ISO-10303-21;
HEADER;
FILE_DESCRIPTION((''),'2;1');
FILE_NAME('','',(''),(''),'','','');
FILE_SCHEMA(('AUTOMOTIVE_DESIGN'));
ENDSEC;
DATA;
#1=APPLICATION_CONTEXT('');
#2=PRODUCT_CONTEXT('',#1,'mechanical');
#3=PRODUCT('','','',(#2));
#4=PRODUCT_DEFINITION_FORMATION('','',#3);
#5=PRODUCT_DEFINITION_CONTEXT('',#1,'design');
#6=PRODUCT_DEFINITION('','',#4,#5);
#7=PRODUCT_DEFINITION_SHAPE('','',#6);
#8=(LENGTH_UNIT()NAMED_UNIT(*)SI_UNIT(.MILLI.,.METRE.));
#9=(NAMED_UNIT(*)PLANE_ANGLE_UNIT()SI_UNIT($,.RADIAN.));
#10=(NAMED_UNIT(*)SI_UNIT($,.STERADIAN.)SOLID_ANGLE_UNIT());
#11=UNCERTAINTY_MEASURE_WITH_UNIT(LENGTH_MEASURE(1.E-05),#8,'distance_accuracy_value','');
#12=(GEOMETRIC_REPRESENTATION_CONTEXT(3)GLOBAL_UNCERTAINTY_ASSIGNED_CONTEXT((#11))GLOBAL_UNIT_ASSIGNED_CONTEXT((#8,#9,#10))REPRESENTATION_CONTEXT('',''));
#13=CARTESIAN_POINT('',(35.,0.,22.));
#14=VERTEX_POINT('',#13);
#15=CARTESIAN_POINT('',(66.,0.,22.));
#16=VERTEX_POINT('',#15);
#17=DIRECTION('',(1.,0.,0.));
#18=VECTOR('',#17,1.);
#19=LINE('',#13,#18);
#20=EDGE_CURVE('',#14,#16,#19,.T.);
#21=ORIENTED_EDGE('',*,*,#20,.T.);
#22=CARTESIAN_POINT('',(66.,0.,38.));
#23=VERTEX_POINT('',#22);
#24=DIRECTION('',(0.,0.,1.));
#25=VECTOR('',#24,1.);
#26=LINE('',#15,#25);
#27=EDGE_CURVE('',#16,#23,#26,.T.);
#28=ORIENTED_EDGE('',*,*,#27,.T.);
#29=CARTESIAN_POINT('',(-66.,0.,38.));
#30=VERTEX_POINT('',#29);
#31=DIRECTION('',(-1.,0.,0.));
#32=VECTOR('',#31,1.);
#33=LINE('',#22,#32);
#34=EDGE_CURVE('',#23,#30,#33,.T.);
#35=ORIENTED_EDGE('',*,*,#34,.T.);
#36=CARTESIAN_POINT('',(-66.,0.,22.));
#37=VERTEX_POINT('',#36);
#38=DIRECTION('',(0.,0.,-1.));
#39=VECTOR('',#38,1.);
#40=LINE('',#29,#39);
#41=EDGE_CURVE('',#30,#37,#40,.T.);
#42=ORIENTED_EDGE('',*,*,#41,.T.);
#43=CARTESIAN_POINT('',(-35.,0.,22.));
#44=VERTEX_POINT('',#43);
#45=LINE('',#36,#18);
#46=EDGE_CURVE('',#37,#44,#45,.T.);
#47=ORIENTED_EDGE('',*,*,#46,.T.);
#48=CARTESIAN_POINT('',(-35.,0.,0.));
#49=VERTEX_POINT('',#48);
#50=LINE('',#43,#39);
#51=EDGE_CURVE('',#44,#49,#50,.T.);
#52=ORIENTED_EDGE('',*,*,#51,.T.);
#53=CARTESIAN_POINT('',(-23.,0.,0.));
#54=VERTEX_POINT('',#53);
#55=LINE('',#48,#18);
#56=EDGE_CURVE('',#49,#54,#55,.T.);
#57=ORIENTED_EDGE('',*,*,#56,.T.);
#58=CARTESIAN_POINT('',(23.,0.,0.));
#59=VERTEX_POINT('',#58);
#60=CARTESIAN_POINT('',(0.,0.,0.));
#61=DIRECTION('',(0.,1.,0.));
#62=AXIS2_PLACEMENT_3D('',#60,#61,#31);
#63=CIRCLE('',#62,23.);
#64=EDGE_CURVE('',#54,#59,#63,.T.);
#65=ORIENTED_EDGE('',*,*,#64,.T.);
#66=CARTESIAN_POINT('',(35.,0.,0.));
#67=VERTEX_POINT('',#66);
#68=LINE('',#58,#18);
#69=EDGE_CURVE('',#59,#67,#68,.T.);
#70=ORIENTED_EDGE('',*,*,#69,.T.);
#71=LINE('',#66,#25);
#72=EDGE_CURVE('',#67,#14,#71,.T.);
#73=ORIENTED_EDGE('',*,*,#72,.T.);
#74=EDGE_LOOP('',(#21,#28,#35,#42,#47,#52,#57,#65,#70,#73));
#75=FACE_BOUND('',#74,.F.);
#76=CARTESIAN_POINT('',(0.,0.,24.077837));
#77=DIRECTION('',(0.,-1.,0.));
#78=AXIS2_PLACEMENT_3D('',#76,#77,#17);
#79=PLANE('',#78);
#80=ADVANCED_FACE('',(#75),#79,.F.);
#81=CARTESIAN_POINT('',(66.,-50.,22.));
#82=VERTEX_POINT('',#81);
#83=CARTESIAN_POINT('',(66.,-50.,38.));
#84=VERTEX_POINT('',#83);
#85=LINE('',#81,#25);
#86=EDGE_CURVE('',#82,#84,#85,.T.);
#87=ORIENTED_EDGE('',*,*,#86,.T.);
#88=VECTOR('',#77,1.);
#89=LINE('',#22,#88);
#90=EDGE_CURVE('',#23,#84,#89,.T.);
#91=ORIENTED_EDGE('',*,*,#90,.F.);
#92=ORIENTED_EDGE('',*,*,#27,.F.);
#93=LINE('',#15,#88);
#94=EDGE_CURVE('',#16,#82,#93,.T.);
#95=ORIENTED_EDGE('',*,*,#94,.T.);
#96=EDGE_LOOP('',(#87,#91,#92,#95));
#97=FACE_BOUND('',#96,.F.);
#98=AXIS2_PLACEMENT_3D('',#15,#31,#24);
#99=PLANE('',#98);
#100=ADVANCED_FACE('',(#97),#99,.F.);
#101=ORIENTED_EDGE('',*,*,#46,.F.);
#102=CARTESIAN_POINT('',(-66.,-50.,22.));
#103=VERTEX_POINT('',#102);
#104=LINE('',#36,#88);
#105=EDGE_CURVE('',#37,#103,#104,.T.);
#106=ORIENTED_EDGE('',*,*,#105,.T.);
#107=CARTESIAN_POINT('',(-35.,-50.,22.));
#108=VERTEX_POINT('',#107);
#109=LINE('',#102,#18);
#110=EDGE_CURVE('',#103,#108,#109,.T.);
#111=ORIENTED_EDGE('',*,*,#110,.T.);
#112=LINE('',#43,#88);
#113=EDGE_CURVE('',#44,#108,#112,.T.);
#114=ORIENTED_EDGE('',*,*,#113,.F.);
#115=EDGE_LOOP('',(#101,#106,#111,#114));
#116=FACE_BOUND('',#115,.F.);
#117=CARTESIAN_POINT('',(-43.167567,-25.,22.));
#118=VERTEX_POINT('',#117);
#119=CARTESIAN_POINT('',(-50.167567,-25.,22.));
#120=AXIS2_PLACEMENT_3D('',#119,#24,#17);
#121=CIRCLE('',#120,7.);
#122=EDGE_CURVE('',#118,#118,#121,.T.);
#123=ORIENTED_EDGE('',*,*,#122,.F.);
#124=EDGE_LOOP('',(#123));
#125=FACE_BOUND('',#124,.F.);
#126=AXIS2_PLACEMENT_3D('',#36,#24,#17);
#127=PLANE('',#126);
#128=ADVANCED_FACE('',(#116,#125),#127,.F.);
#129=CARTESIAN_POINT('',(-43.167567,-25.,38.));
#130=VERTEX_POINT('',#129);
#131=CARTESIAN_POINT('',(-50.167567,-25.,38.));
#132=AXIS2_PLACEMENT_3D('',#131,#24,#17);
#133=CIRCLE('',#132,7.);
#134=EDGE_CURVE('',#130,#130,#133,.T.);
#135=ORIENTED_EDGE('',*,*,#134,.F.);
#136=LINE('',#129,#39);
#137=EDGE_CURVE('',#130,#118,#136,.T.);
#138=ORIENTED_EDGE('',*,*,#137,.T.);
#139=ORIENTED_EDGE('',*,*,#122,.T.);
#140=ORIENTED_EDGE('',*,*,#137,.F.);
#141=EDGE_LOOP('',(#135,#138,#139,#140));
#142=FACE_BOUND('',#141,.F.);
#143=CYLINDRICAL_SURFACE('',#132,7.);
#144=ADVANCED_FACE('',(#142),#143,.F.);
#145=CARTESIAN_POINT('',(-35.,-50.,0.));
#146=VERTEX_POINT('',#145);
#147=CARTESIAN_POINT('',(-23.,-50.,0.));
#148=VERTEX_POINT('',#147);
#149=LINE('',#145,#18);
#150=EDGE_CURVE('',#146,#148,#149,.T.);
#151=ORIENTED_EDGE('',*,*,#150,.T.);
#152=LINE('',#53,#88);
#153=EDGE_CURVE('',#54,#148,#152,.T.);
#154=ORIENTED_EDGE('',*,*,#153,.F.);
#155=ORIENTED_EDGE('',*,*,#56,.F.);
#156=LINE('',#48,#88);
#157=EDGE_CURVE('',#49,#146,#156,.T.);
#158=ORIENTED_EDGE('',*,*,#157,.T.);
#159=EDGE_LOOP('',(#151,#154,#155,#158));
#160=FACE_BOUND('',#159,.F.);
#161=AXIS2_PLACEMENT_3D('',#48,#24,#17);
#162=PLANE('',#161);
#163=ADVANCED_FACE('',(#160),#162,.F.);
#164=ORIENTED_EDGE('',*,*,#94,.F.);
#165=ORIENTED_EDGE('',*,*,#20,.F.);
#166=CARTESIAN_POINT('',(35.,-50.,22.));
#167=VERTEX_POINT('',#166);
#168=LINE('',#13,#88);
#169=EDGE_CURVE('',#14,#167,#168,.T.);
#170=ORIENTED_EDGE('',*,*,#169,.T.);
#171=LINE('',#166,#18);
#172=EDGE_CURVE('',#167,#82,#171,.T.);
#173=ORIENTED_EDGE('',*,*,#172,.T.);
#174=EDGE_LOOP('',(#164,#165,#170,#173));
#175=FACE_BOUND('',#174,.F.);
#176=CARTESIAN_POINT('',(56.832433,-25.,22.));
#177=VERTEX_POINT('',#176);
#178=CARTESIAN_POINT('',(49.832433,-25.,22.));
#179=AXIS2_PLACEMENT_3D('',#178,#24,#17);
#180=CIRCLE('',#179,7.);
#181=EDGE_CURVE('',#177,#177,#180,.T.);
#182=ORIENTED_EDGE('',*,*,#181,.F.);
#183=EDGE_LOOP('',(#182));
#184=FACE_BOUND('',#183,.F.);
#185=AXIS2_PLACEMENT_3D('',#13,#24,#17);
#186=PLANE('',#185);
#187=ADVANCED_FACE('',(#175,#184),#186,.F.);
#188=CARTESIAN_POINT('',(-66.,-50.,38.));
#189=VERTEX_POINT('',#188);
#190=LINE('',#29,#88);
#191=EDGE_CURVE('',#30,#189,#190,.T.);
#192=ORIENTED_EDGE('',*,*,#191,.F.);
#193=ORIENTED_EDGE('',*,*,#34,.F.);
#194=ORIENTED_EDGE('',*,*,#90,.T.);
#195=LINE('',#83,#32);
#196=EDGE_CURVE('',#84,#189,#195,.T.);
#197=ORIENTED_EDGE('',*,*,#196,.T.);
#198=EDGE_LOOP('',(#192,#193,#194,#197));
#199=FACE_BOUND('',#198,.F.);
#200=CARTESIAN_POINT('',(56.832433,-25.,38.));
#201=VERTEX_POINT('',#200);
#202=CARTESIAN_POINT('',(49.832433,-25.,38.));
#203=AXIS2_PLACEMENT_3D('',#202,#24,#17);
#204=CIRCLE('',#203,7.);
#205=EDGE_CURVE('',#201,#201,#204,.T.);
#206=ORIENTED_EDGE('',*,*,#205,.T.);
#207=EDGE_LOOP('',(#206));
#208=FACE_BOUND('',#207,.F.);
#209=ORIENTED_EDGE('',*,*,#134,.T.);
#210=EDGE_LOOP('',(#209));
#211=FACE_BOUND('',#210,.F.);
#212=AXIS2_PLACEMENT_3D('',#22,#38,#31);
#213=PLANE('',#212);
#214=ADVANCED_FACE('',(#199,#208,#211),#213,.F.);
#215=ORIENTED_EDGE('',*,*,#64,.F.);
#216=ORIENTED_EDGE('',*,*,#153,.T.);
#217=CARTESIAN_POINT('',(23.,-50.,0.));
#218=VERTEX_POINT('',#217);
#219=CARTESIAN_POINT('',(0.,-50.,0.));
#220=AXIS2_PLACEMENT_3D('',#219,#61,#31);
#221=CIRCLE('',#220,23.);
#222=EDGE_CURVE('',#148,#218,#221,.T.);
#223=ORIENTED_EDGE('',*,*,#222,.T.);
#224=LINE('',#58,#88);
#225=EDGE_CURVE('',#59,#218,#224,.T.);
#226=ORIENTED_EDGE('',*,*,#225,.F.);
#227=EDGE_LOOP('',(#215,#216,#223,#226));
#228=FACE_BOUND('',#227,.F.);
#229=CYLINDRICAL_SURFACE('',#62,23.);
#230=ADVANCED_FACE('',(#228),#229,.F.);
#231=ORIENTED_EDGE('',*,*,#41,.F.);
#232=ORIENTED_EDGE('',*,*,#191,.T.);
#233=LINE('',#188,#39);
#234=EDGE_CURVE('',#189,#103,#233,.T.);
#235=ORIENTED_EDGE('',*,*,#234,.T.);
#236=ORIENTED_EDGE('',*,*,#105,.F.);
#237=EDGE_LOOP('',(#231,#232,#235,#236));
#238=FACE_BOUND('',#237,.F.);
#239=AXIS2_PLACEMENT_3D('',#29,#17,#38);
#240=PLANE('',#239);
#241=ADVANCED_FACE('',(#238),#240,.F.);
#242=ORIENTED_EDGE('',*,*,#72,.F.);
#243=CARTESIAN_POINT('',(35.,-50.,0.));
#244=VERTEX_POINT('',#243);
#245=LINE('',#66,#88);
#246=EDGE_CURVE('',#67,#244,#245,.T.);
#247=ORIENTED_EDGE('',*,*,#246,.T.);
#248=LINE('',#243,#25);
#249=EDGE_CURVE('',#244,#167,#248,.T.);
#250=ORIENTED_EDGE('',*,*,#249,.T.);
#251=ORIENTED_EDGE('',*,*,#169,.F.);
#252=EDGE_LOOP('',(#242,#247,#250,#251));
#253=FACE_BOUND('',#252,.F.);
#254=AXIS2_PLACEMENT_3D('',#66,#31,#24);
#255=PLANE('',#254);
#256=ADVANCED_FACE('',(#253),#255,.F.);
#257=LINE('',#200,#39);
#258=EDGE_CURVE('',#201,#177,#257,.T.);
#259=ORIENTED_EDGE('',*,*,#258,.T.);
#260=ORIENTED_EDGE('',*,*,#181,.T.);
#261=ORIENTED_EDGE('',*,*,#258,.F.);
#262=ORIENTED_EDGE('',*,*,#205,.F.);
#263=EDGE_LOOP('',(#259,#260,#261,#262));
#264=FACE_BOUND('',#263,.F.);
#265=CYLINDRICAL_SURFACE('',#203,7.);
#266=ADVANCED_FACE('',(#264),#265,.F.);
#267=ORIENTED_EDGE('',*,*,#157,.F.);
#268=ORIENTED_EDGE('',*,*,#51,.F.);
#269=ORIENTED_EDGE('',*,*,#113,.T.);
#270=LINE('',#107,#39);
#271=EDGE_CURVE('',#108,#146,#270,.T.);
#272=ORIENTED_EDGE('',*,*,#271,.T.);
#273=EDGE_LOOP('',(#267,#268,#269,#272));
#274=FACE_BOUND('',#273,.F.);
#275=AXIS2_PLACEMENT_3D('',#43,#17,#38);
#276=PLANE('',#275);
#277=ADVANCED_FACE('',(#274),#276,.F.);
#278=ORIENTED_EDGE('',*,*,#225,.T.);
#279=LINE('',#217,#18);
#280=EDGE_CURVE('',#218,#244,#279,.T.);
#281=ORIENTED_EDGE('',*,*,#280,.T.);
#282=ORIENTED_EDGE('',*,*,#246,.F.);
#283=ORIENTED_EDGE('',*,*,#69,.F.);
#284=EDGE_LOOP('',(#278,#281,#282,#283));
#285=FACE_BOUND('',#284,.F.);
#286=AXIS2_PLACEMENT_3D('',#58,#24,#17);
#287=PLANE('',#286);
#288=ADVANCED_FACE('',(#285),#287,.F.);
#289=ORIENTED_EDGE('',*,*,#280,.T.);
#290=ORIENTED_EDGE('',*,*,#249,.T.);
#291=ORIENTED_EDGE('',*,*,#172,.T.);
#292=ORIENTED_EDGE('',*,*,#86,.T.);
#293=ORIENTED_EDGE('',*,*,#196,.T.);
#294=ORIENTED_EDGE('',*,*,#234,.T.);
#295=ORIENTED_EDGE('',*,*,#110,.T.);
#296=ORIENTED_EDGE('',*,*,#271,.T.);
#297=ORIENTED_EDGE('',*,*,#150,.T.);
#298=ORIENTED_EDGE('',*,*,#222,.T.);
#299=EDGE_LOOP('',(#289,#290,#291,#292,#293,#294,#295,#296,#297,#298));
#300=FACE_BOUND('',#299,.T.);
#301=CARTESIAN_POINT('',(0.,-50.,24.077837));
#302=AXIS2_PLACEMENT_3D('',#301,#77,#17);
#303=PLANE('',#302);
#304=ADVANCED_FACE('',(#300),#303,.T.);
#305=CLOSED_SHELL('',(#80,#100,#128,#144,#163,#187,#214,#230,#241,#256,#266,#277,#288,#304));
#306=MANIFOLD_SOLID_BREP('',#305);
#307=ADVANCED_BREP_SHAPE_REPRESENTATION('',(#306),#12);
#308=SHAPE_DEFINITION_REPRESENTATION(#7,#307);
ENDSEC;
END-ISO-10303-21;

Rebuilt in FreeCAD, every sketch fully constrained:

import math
import FreeCAD as App
import Part
import Sketcher

doc = App.newDocument("Part")
body = doc.addObject("PartDesign::Body", "Body")

# Sketch on XZ plane
sketch1 = body.newObject("Sketcher::SketchObject", "Sketch")
sketch1.AttachmentSupport = (doc.getObject("XZ_Plane"), [""])
sketch1.MapMode = "FlatFace"
sketch1.addGeometry([
    Part.LineSegment(App.Vector(-35, 22, 0), App.Vector(-35, 0, 0)),  # 0
    Part.LineSegment(App.Vector(-35, 0, 0), App.Vector(-23, 0, 0)),  # 1
    Part.ArcOfCircle(Part.Circle(App.Vector(0, 0, 0), App.Vector(0, 0, 1), 23), math.radians(0), math.radians(180)),  # 2
    Part.LineSegment(App.Vector(23, 0, 0), App.Vector(35, 0, 0)),  # 3
    Part.LineSegment(App.Vector(35, 0, 0), App.Vector(35, 22, 0)),  # 4
    Part.LineSegment(App.Vector(35, 22, 0), App.Vector(66, 22, 0)),  # 5
    Part.LineSegment(App.Vector(66, 22, 0), App.Vector(66, 38, 0)),  # 6
    Part.LineSegment(App.Vector(66, 38, 0), App.Vector(-66, 38, 0)),  # 7
    Part.LineSegment(App.Vector(-66, 38, 0), App.Vector(-66, 22, 0)),  # 8
    Part.LineSegment(App.Vector(-66, 22, 0), App.Vector(-35, 22, 0)),  # 9
], False)
sketch1.addConstraint([
    Sketcher.Constraint("Coincident", 0, 2, 1, 1),
    Sketcher.Constraint("Coincident", 1, 2, 2, 2),
    Sketcher.Constraint("Coincident", 2, 1, 3, 1),
    Sketcher.Constraint("Coincident", 3, 2, 4, 1),
    Sketcher.Constraint("Coincident", 4, 2, 5, 1),
    Sketcher.Constraint("Coincident", 5, 2, 6, 1),
    Sketcher.Constraint("Coincident", 6, 2, 7, 1),
    Sketcher.Constraint("Coincident", 7, 2, 8, 1),
    Sketcher.Constraint("Coincident", 8, 2, 9, 1),
    Sketcher.Constraint("Coincident", 9, 2, 0, 1),
    Sketcher.Constraint("Vertical", 0),
    Sketcher.Constraint("Horizontal", 1),
    Sketcher.Constraint("Horizontal", 3),
    Sketcher.Constraint("Vertical", 4),
    Sketcher.Constraint("Horizontal", 5),
    Sketcher.Constraint("Vertical", 6),
    Sketcher.Constraint("Horizontal", 7),
    Sketcher.Constraint("Vertical", 8),
    Sketcher.Constraint("Horizontal", 9),
    Sketcher.Constraint("Coincident", 2, 3, -1, 1),
    Sketcher.Constraint("Symmetric", 0, 2, 3, 2, -1, 1),
    Sketcher.Constraint("Symmetric", 5, 2, 8, 2, -2),
    Sketcher.Constraint("PointOnObject", 0, 2, -1),
    Sketcher.Constraint("Radius", 2, 23.0),
    Sketcher.Constraint("DistanceX", 1, 1, 1, 2, 12.0),
    Sketcher.Constraint("DistanceX", 5, 1, 5, 2, 31.0),
    Sketcher.Constraint("DistanceY", 0, 2, 0, 1, 22.0),
    Sketcher.Constraint("DistanceY", 6, 1, 6, 2, 16.0),
])
pad1 = body.newObject("PartDesign::Pad", "Pad")
pad1.Profile = sketch1
pad1.Length = 50

# Sketch on XY plane
sketch2 = body.newObject("Sketcher::SketchObject", "Sketch001")
sketch2.AttachmentSupport = (doc.getObject("XY_Plane"), [""])
sketch2.MapMode = "FlatFace"
sketch2.AttachmentOffset = App.Placement(App.Vector(0, 0, 38), App.Rotation())
sketch2.addGeometry([
    Part.Circle(App.Vector(50, -25, 0), App.Vector(0, 0, 1), 7),
    Part.Circle(App.Vector(-50, -25, 0), App.Vector(0, 0, 1), 7),
], False)
sketch2.addConstraint([
    Sketcher.Constraint("Equal", 0, 1),
    Sketcher.Constraint("Horizontal", 0, 3, 1, 3),
    Sketcher.Constraint("Diameter", 0, 14.0),
    Sketcher.Constraint("DistanceY", 0, 3, -1, 1, 25.0),
    Sketcher.Constraint("DistanceX", 1, 3, 0, 3, 100.0),
    Sketcher.Constraint("DistanceX", -1, 1, 0, 3, 49.832433),
])
pocket1 = body.newObject("PartDesign::Pocket", "Pocket")
pocket1.Profile = sketch2
pocket1.Length = 16

doc.recompute()
